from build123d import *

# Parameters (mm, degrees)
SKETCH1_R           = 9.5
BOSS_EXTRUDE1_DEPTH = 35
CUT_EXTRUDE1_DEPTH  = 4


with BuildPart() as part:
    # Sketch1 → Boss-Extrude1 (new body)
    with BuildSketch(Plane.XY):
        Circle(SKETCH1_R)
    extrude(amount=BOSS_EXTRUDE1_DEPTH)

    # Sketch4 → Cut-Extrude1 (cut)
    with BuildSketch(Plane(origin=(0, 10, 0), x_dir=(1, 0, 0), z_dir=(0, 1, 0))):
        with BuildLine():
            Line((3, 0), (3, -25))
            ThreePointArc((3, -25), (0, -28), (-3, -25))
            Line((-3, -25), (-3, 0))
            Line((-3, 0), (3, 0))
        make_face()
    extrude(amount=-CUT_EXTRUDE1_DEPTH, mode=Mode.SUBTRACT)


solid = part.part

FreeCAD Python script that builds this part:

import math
import FreeCAD as App
import Part
import Sketcher

V = App.Vector

doc = App.newDocument("Part")
body = doc.addObject("PartDesign::Body", "Body")

# Sketch on XY plane
sketch1 = body.newObject("Sketcher::SketchObject", "Sketch")
sketch1.AttachmentSupport = (doc.getObject("XY_Plane"), [""])
sketch1.MapMode = "FlatFace"
sketch1.addGeometry(Part.Circle(V(0, 0, 0), V(0, 0, 1), 9.5), False)
sketch1.addConstraint(Sketcher.Constraint("Coincident", 0, 3, -1, 1))
sketch1.addConstraint(Sketcher.Constraint("Diameter", 0, 19.0))
pad1 = body.newObject("PartDesign::Pad", "Pad")
pad1.Profile = sketch1
pad1.Length = 35

# Sketch on XZ plane
sketch2 = body.newObject("Sketcher::SketchObject", "Sketch001")
sketch2.AttachmentSupport = (doc.getObject("XZ_Plane"), [""])
sketch2.MapMode = "FlatFace"
sketch2.AttachmentOffset = App.Placement(V(0, 0, -10), App.Rotation())
sketch2.addGeometry(Part.LineSegment(V(3, 25, 0), V(3, 0, 0)), False)
sketch2.addGeometry(Part.LineSegment(V(3, 0, 0), V(-3, 0, 0)), False)
sketch2.addGeometry(Part.LineSegment(V(-3, 0, 0), V(-3, 25, 0)), False)
sketch2.addGeometry(Part.ArcOfCircle(Part.Circle(V(0, 25, 0), V(0, 0, 1), 3), math.radians(0), math.radians(180)), False)
sketch2.addConstraint(Sketcher.Constraint("Coincident", 0, 2, 1, 1))
sketch2.addConstraint(Sketcher.Constraint("Coincident", 1, 2, 2, 1))
sketch2.addConstraint(Sketcher.Constraint("Tangent", 2, 2, 3, 2))
sketch2.addConstraint(Sketcher.Constraint("Tangent", 3, 1, 0, 1))
sketch2.addConstraint(Sketcher.Constraint("Vertical", 0))
sketch2.addConstraint(Sketcher.Constraint("Horizontal", 1))
sketch2.addConstraint(Sketcher.Constraint("Vertical", 2))
sketch2.addConstraint(Sketcher.Constraint("Symmetric", 0, 2, 1, 2, -1, 1))
sketch2.addConstraint(Sketcher.Constraint("Radius", 3, 3.0))
sketch2.addConstraint(Sketcher.Constraint("DistanceY", 0, 2, 0, 1, 25.0))
pocket1 = body.newObject("PartDesign::Pocket", "Pocket")
pocket1.Profile = sketch2
pocket1.Length = 4
pocket1.Reversed = True

doc.recompute()
